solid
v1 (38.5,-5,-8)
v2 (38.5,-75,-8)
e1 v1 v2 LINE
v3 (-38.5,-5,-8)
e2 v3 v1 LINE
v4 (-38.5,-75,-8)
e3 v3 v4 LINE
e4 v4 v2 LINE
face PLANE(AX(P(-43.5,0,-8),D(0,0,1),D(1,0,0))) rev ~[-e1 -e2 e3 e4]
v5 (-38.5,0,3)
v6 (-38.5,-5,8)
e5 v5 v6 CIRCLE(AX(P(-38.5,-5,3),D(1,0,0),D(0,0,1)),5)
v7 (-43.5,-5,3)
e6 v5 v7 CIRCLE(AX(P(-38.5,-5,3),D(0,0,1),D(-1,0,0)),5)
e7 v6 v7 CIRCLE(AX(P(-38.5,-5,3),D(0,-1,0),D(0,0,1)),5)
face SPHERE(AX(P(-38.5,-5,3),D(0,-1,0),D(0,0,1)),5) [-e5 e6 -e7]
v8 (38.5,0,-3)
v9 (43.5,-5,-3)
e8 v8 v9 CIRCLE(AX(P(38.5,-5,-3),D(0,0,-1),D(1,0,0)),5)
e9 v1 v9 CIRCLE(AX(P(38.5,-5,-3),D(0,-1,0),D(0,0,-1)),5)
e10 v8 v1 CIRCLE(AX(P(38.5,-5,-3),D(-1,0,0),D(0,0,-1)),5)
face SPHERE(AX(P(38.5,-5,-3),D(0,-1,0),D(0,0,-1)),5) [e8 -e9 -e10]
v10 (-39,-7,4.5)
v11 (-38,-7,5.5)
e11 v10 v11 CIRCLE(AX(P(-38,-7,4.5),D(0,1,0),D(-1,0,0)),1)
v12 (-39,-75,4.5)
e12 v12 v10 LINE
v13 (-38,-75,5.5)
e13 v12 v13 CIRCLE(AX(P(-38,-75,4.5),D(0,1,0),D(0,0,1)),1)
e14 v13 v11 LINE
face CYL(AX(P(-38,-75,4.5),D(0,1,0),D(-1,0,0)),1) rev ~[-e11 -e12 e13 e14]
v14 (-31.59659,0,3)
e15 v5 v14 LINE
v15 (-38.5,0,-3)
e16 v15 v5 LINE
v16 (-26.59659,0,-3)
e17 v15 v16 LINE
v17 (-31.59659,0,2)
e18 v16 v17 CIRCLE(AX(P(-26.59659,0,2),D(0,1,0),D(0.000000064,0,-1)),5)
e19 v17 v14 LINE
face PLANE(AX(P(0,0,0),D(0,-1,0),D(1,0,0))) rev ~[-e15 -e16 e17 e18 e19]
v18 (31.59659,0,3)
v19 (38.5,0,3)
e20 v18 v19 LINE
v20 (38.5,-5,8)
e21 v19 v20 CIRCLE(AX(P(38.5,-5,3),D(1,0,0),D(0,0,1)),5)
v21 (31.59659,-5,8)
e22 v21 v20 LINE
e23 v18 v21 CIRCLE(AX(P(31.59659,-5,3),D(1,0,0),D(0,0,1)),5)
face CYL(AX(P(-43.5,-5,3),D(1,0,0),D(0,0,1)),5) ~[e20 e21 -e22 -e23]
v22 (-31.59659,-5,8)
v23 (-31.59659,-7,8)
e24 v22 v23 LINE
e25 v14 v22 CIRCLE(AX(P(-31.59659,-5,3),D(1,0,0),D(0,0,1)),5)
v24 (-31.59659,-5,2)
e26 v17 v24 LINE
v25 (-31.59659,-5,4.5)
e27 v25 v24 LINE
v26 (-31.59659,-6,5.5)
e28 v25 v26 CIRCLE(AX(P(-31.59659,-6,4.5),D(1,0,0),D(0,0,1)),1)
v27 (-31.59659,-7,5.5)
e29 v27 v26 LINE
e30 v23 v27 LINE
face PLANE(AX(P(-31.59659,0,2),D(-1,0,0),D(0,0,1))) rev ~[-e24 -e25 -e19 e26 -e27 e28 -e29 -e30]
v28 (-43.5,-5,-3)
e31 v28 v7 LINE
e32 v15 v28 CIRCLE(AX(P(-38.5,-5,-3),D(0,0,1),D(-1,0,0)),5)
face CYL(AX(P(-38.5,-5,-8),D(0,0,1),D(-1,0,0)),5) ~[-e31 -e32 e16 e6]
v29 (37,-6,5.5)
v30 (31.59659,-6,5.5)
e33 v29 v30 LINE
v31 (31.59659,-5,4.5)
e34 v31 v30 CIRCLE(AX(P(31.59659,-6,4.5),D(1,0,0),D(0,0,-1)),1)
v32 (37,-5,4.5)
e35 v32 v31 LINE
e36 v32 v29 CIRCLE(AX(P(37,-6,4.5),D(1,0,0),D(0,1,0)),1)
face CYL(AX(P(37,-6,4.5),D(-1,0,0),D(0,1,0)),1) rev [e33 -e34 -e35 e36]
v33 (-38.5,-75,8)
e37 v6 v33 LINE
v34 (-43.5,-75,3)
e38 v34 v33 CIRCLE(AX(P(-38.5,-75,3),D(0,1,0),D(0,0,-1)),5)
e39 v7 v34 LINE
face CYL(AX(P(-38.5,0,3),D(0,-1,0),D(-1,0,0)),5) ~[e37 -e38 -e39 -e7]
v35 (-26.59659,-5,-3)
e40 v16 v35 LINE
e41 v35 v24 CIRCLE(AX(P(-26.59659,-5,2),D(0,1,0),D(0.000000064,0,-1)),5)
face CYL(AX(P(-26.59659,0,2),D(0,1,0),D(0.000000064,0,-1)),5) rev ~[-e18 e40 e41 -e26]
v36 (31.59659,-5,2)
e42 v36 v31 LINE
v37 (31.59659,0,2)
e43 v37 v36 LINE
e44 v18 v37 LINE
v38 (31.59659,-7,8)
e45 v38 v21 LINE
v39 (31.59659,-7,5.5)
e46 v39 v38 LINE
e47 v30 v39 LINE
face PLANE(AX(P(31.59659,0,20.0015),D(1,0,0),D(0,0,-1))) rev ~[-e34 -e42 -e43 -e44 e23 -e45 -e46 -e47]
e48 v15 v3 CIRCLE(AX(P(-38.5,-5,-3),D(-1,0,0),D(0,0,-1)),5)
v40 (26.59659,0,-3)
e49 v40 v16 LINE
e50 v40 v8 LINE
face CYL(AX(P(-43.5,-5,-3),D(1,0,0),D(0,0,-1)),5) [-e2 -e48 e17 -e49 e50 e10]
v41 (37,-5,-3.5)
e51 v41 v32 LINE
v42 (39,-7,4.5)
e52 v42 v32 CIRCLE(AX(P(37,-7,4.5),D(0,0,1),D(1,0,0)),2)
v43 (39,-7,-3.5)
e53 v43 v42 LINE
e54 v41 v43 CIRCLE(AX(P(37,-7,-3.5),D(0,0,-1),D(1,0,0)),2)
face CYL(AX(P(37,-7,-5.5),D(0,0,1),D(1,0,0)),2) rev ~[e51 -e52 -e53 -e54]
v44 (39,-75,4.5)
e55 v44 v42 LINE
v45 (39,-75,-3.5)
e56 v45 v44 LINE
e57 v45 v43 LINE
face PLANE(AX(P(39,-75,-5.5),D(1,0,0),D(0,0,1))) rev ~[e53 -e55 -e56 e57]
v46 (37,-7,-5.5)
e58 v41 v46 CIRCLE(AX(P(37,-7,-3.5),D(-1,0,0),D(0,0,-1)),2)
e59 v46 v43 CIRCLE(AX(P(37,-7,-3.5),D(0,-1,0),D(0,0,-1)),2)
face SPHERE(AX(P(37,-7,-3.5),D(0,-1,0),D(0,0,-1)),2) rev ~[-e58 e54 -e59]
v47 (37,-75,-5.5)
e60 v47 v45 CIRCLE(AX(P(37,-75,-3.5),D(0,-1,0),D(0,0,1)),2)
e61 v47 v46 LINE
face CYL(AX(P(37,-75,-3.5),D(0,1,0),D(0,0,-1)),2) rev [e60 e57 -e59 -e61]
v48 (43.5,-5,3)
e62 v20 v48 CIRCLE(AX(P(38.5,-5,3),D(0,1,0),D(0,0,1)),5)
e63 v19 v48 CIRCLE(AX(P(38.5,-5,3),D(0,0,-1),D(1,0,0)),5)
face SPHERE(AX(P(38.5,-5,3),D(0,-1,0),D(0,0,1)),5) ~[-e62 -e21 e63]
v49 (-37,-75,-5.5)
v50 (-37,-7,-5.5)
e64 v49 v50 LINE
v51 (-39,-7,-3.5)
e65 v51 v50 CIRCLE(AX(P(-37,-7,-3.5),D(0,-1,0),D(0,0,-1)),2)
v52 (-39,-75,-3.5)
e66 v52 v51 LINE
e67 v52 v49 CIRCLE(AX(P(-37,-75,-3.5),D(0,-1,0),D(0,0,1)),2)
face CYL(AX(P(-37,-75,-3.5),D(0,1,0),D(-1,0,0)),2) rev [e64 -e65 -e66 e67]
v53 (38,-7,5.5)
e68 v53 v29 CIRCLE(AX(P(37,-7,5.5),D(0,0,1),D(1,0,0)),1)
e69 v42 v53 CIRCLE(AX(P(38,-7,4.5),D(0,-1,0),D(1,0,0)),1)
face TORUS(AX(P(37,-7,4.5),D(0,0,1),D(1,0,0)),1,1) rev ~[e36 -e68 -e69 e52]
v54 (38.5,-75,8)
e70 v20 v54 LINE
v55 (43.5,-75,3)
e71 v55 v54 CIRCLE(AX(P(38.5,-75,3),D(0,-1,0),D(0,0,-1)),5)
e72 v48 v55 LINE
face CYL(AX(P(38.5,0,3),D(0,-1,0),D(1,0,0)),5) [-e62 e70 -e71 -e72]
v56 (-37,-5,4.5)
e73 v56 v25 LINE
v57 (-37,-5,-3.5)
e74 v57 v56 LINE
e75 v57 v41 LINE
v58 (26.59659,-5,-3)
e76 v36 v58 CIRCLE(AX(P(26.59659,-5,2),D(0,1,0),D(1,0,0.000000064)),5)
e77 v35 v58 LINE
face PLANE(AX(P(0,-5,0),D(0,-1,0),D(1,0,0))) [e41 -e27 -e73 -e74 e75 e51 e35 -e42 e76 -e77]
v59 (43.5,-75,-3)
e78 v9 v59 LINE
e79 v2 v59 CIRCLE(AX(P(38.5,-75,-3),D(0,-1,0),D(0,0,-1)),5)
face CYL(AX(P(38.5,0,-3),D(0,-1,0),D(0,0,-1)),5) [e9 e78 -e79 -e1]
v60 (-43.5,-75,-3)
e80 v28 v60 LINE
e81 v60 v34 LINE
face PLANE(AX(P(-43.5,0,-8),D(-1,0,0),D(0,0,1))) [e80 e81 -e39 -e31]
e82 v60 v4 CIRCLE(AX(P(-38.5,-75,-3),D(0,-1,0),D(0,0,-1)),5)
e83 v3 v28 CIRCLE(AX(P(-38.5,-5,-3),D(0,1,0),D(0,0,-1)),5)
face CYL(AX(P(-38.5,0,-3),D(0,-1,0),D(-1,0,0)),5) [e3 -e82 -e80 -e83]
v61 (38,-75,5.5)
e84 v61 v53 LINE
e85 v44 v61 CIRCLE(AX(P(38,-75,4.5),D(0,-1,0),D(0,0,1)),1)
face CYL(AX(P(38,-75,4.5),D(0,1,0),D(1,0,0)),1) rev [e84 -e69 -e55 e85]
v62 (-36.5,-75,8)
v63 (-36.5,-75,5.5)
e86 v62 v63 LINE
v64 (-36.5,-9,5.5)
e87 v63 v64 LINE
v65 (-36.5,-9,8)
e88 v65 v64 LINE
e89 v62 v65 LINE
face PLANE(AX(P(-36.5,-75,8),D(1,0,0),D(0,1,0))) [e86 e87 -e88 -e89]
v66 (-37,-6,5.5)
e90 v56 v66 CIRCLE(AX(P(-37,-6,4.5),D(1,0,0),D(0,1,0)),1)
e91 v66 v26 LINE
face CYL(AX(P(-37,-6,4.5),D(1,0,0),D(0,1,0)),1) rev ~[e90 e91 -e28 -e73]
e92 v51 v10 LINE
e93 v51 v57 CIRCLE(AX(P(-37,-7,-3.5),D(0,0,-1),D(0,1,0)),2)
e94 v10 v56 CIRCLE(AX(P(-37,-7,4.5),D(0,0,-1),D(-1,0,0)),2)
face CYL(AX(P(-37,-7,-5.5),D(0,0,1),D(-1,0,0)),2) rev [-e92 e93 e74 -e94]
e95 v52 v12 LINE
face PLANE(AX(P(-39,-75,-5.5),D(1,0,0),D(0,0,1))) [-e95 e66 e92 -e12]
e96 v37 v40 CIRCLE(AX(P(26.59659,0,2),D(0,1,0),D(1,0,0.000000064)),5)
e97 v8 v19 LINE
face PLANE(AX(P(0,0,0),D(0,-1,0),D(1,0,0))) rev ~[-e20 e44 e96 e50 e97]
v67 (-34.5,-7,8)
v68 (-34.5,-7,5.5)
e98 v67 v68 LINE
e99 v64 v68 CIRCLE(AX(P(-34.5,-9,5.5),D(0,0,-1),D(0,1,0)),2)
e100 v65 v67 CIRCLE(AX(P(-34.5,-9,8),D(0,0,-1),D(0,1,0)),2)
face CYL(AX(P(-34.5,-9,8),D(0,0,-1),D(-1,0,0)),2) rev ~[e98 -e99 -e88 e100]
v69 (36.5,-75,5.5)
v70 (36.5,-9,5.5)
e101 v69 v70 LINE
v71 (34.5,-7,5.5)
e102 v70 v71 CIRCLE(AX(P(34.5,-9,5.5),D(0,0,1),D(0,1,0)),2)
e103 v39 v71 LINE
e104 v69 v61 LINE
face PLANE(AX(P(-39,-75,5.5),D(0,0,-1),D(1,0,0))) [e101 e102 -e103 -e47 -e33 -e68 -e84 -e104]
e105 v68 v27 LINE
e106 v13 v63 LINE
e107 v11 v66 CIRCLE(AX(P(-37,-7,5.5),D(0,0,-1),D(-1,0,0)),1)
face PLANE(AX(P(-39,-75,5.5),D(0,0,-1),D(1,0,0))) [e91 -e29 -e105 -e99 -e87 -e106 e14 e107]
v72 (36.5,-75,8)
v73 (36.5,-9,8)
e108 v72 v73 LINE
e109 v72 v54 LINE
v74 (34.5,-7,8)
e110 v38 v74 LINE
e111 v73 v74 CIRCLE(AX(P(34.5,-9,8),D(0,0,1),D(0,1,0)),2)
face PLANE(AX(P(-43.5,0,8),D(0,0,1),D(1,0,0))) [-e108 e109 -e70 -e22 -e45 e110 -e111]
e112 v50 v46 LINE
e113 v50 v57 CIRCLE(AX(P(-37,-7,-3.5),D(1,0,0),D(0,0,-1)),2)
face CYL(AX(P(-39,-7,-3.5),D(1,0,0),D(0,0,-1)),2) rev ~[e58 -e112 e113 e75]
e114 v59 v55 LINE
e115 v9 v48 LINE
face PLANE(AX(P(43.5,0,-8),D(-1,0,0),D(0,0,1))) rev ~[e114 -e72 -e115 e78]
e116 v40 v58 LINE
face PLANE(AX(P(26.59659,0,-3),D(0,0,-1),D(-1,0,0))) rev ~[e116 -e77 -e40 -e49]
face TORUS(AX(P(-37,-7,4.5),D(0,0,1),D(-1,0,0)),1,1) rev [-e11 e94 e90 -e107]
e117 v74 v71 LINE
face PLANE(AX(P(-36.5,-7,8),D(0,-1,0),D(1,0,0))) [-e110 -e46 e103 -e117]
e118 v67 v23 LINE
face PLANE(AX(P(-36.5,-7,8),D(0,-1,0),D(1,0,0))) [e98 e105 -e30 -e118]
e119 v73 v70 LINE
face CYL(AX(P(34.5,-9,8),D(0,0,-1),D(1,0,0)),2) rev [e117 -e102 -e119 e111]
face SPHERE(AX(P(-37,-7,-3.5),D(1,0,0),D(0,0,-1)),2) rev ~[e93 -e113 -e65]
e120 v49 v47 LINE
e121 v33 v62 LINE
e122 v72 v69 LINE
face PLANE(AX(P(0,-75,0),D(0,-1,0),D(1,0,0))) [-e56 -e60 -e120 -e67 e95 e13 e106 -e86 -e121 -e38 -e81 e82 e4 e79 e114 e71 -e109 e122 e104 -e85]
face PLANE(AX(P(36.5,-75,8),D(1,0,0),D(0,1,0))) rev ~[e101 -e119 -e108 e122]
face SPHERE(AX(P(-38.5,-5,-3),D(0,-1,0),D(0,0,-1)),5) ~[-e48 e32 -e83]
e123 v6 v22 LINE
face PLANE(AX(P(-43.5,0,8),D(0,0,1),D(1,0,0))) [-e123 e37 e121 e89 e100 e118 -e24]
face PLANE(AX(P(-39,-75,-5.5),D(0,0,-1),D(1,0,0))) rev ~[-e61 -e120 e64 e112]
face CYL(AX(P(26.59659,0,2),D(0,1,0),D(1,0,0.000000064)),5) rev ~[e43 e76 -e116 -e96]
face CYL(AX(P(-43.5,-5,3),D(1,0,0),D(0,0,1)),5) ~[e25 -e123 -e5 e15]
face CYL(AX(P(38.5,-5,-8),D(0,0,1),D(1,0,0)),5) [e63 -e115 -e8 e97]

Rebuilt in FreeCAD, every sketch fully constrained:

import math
import FreeCAD as App
import Part
import Sketcher
Q = App.Units.Quantity


def edges_at(feature, points):
    """Names of the edges that pass closest to the given points."""
    edges = feature.Shape.Edges
    near = lambda p: min(range(len(edges)), key=lambda i: edges[i].distToShape(Part.Vertex(*p))[0])
    return sorted({f"Edge{near(p) + 1}" for p in points})

doc = App.newDocument("Part")
body = doc.addObject("PartDesign::Body", "Body")

sketch1 = body.newObject("Sketcher::SketchObject", "Sketch")
sketch1.AttachmentSupport = (doc.getObject("XZ_Plane"), [""])
sketch1.MapMode = "FlatFace"
sketch1.addGeometry([
    Part.LineSegment(App.Vector(-43.5, 8, 0), App.Vector(-43.5, -8, 0)),
    Part.LineSegment(App.Vector(-43.5, -8, 0), App.Vector(43.5, -8, 0)),
    Part.LineSegment(App.Vector(43.5, -8, 0), App.Vector(43.5, 8, 0)),
    Part.LineSegment(App.Vector(43.5, 8, 0), App.Vector(-43.5, 8, 0)),
], False)
sketch1.addConstraint([
    Sketcher.Constraint("Coincident", 0, 2, 1, 1),
    Sketcher.Constraint("Coincident", 1, 2, 2, 1),
    Sketcher.Constraint("Coincident", 2, 2, 3, 1),
    Sketcher.Constraint("Coincident", 3, 2, 0, 1),
    Sketcher.Constraint("Vertical", 0),
    Sketcher.Constraint("Horizontal", 1),
    Sketcher.Constraint("Vertical", 2),
    Sketcher.Constraint("Horizontal", 3),
    Sketcher.Constraint("Symmetric", 0, 2, 2, 2, -1, 1),
    Sketcher.Constraint("DistanceX", 1, 1, 1, 2, Q("87 mm")),
    Sketcher.Constraint("DistanceY", 0, 2, 0, 1, Q("16 mm")),
])
pad1 = body.newObject("PartDesign::Pad", "Pad")
pad1.Profile = sketch1
pad1.Length = 75
doc.recompute()

fillet = body.newObject("PartDesign::Fillet", "Fillet")
fillet.Base = (pad1, edges_at(pad1, [
    (-43.5, -37.5, 8),
    (43.5, -37.5, 8),
    (43.5, -37.5, -8),
    (-43.5, -37.5, -8),
    (0, 0, 8),
    (0, 0, -8),
    (-43.5, 0, 0),
    (43.5, 0, 0),
]))
fillet.Radius = 5

sketch2 = body.newObject("Sketcher::SketchObject", "Sketch001")
sketch2.AttachmentSupport = (doc.getObject("XZ_Plane"), [""])
sketch2.MapMode = "FlatFace"
sketch2.AttachmentOffset = App.Placement(App.Vector(0, 0, 75), App.Rotation())
sketch2.addGeometry([
    Part.LineSegment(App.Vector(-39, 5.5, 0), App.Vector(-39, -5.5, 0)),
    Part.LineSegment(App.Vector(-39, -5.5, 0), App.Vector(39, -5.5, 0)),
    Part.LineSegment(App.Vector(39, -5.5, 0), App.Vector(39, 5.5, 0)),
    Part.LineSegment(App.Vector(39, 5.5, 0), App.Vector(-39, 5.5, 0)),
], False)
sketch2.addConstraint([
    Sketcher.Constraint("Coincident", 0, 2, 1, 1),
    Sketcher.Constraint("Coincident", 1, 2, 2, 1),
    Sketcher.Constraint("Coincident", 2, 2, 3, 1),
    Sketcher.Constraint("Coincident", 3, 2, 0, 1),
    Sketcher.Constraint("Vertical", 0),
    Sketcher.Constraint("Horizontal", 1),
    Sketcher.Constraint("Vertical", 2),
    Sketcher.Constraint("Horizontal", 3),
    Sketcher.Constraint("Symmetric", 0, 2, 2, 2, -1, 1),
    Sketcher.Constraint("DistanceX", 1, 1, 1, 2, Q("78 mm")),
    Sketcher.Constraint("DistanceY", 0, 2, 0, 1, Q("11 mm")),
])
pocket1 = body.newObject("PartDesign::Pocket", "Pocket")
pocket1.Profile = sketch2
pocket1.Length = 70

sketch3 = body.newObject("Sketcher::SketchObject", "Sketch002")
sketch3.AttachmentSupport = (doc.getObject("XY_Plane"), [""])
sketch3.MapMode = "FlatFace"
sketch3.AttachmentOffset = App.Placement(App.Vector(0, 0, 8), App.Rotation())
sketch3.addGeometry([
    Part.LineSegment(App.Vector(-36.5, -7, 0), App.Vector(-36.5, -75, 0)),
    Part.LineSegment(App.Vector(-36.5, -75, 0), App.Vector(36.5, -75, 0)),
    Part.LineSegment(App.Vector(36.5, -75, 0), App.Vector(36.5, -7, 0)),
    Part.LineSegment(App.Vector(36.5, -7, 0), App.Vector(-36.5, -7, 0)),
], False)
sketch3.addConstraint([
    Sketcher.Constraint("Coincident", 0, 2, 1, 1),
    Sketcher.Constraint("Coincident", 1, 2, 2, 1),
    Sketcher.Constraint("Coincident", 2, 2, 3, 1),
    Sketcher.Constraint("Coincident", 3, 2, 0, 1),
    Sketcher.Constraint("Vertical", 0),
    Sketcher.Constraint("Horizontal", 1),
    Sketcher.Constraint("Vertical", 2),
    Sketcher.Constraint("Horizontal", 3),
    Sketcher.Constraint("DistanceX", 1, 1, 1, 2, Q("73 mm")),
    Sketcher.Constraint("DistanceY", 0, 2, 0, 1, Q("68 mm")),
    Sketcher.Constraint("DistanceY", 0, 2, -1, 1, Q("75 mm")),
    Sketcher.Constraint("DistanceX", 0, 2, -1, 1, Q("36.5 mm")),
])
pocket2 = body.newObject("PartDesign::Pocket", "Pocket001")
pocket2.Profile = sketch3
pocket2.Length = 2.5
doc.recompute()

fillet2 = body.newObject("PartDesign::Fillet", "Fillet001")
fillet2.Base = (pocket2, edges_at(pocket2, [
    (36.5, -7, 6.75),
    (-36.5, -7, 6.75),
    (39, -40, -5.5),
    (0, -5, -5.5),
    (-39, -40, -5.5),
    (-39, -5, 0),
    (39, -5, 0),
]))
fillet2.Radius = 2

sketch4 = body.newObject("Sketcher::SketchObject", "Sketch003")
sketch4.AttachmentSupport = (doc.getObject("XZ_Plane"), [""])
sketch4.MapMode = "FlatFace"
sketch4.addGeometry([
    Part.ArcOfCircle(Part.Circle(App.Vector(26.59659, 2, 0), App.Vector(0, 0, 1), 5), math.radians(-90.000004), math.radians(0.000004)),
    Part.LineSegment(App.Vector(26.59659, -3, 0), App.Vector(-26.59659, -3, 0)),
    Part.ArcOfCircle(Part.Circle(App.Vector(-26.59659, 2, 0), App.Vector(0, 0, 1), 5), math.radians(179.999996), math.radians(270.000004)),
    Part.LineSegment(App.Vector(-31.59659, 2, 0), App.Vector(-31.59659, 20.0015, 0)),
    Part.LineSegment(App.Vector(-31.59659, 20.0015, 0), App.Vector(31.59659, 20.0015, 0)),
    Part.LineSegment(App.Vector(31.59659, 20.0015, 0), App.Vector(31.59659, 2, 0)),
], False)
sketch4.addConstraint([
    Sketcher.Constraint("Tangent", 0, 1, 1, 1),
    Sketcher.Constraint("Tangent", 1, 2, 2, 2),
    Sketcher.Constraint("Tangent", 2, 1, 3, 1),
    Sketcher.Constraint("Coincident", 3, 2, 4, 1),
    Sketcher.Constraint("Coincident", 4, 2, 5, 1),
    Sketcher.Constraint("Tangent", 5, 2, 0, 2),
    Sketcher.Constraint("Horizontal", 1),
    Sketcher.Constraint("Vertical", 3),
    Sketcher.Constraint("Horizontal", 4),
    Sketcher.Constraint("Vertical", 5),
    Sketcher.Constraint("Equal", 0, 2),
    Sketcher.Constraint("Radius", 0, Q("5 mm")),
    Sketcher.Constraint("DistanceY", -1, 1, 0, 3, Q("2 mm")),
    Sketcher.Constraint("DistanceY", 3, 1, 3, 2, Q("18.0015 mm")),
    Sketcher.Constraint("DistanceX", 1, 2, 1, 1, Q("53.19318 mm")),
    Sketcher.Constraint("DistanceX", -1, 1, 0, 3, Q("26.59659 mm")),
])
pocket3 = body.newObject("PartDesign::Pocket", "Pocket002")
pocket3.Profile = sketch4
pocket3.Length = 25
pocket3.Reversed = True
doc.recompute()

fillet3 = body.newObject("PartDesign::Fillet", "Fillet002")
fillet3.Base = (pocket3, edges_at(pocket3, [(39, -41, 5.5), (-39, -41, 5.5)]))
fillet3.Radius = 1

doc.recompute()
